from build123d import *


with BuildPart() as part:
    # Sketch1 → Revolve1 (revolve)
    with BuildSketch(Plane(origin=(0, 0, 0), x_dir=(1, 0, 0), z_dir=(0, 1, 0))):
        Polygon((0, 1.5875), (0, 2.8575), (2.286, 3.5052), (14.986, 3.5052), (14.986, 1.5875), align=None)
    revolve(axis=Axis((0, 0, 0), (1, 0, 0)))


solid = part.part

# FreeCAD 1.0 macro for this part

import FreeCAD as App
import Part
import Sketcher

V = App.Vector
Q = App.Units.Quantity


def add_polygon(sketch, points):
    """Adds a closed chain of lines whose ends are joined by coincident constraints."""
    first, n = sketch.GeometryCount, len(points)
    for a, b in zip(points, points[1:] + points[:1]):
        sketch.addGeometry(Part.LineSegment(App.Vector(*a, 0), App.Vector(*b, 0)), False)
    for i in range(n):
        sketch.addConstraint(Sketcher.Constraint("Coincident", first + i, 2, first + (i + 1) % n, 1))

doc = App.newDocument("Part")
params = doc.addObject("Spreadsheet::Sheet", "Params")
for row, (alias, value) in enumerate([
    ("sketch1_width", "0.5 in"),
    ("sketch1_width2", "0.59 in"),
    ("sketch1_height", "0.05 in"),
    ("revolution_angle", "360 deg"),
], start=1):
    params.set(f"A{row}", alias)
    params.set(f"B{row}", "=" + value)
    params.setAlias(f"B{row}", alias)

body = doc.addObject("PartDesign::Body", "Body")

sketch1 = body.newObject("Sketcher::SketchObject", "Sketch")
sketch1.AttachmentSupport = (doc.getObject("XZ_Plane"), [""])
sketch1.MapMode = "FlatFace"
add_polygon(sketch1, [(0, -2.8575), (0, -1.5875), (14.986, -1.5875), (14.986, -3.5052), (2.286, -3.5052)])
sketch1.addConstraint(Sketcher.Constraint("Vertical", 0))
sketch1.addConstraint(Sketcher.Constraint("Horizontal", 1))
sketch1.addConstraint(Sketcher.Constraint("Vertical", 2))
sketch1.addConstraint(Sketcher.Constraint("Horizontal", 3))
sketch1.addConstraint(Sketcher.Constraint("PointOnObject", 0, 2, -2))
sketch1.addConstraint(Sketcher.Constraint("DistanceX", 3, 2, 3, 1, Q("0.5 in")))
sketch1.addConstraint(Sketcher.Constraint("DistanceX", 1, 1, 1, 2, Q("0.59 in")))
sketch1.addConstraint(Sketcher.Constraint("DistanceY", 0, 1, 0, 2, Q("0.05 in")))
sketch1.addConstraint(Sketcher.Constraint("DistanceY", 2, 2, 2, 1, Q("0.0755 in")))
sketch1.addConstraint(Sketcher.Constraint("DistanceY", 0, 2, -1, 1, Q("0.0625 in")))
sketch1.setExpression("Constraints[10]", "Params.sketch1_width")
sketch1.setExpression("Constraints[11]", "Params.sketch1_width2")
sketch1.setExpression("Constraints[12]", "Params.sketch1_height")
revolution = body.newObject("PartDesign::Revolution", "Revolution")
revolution.Profile = sketch1
revolution.ReferenceAxis = (sketch1, ["H_Axis"])
revolution.setExpression("Angle", "Params.revolution_angle")

doc.recompute()
